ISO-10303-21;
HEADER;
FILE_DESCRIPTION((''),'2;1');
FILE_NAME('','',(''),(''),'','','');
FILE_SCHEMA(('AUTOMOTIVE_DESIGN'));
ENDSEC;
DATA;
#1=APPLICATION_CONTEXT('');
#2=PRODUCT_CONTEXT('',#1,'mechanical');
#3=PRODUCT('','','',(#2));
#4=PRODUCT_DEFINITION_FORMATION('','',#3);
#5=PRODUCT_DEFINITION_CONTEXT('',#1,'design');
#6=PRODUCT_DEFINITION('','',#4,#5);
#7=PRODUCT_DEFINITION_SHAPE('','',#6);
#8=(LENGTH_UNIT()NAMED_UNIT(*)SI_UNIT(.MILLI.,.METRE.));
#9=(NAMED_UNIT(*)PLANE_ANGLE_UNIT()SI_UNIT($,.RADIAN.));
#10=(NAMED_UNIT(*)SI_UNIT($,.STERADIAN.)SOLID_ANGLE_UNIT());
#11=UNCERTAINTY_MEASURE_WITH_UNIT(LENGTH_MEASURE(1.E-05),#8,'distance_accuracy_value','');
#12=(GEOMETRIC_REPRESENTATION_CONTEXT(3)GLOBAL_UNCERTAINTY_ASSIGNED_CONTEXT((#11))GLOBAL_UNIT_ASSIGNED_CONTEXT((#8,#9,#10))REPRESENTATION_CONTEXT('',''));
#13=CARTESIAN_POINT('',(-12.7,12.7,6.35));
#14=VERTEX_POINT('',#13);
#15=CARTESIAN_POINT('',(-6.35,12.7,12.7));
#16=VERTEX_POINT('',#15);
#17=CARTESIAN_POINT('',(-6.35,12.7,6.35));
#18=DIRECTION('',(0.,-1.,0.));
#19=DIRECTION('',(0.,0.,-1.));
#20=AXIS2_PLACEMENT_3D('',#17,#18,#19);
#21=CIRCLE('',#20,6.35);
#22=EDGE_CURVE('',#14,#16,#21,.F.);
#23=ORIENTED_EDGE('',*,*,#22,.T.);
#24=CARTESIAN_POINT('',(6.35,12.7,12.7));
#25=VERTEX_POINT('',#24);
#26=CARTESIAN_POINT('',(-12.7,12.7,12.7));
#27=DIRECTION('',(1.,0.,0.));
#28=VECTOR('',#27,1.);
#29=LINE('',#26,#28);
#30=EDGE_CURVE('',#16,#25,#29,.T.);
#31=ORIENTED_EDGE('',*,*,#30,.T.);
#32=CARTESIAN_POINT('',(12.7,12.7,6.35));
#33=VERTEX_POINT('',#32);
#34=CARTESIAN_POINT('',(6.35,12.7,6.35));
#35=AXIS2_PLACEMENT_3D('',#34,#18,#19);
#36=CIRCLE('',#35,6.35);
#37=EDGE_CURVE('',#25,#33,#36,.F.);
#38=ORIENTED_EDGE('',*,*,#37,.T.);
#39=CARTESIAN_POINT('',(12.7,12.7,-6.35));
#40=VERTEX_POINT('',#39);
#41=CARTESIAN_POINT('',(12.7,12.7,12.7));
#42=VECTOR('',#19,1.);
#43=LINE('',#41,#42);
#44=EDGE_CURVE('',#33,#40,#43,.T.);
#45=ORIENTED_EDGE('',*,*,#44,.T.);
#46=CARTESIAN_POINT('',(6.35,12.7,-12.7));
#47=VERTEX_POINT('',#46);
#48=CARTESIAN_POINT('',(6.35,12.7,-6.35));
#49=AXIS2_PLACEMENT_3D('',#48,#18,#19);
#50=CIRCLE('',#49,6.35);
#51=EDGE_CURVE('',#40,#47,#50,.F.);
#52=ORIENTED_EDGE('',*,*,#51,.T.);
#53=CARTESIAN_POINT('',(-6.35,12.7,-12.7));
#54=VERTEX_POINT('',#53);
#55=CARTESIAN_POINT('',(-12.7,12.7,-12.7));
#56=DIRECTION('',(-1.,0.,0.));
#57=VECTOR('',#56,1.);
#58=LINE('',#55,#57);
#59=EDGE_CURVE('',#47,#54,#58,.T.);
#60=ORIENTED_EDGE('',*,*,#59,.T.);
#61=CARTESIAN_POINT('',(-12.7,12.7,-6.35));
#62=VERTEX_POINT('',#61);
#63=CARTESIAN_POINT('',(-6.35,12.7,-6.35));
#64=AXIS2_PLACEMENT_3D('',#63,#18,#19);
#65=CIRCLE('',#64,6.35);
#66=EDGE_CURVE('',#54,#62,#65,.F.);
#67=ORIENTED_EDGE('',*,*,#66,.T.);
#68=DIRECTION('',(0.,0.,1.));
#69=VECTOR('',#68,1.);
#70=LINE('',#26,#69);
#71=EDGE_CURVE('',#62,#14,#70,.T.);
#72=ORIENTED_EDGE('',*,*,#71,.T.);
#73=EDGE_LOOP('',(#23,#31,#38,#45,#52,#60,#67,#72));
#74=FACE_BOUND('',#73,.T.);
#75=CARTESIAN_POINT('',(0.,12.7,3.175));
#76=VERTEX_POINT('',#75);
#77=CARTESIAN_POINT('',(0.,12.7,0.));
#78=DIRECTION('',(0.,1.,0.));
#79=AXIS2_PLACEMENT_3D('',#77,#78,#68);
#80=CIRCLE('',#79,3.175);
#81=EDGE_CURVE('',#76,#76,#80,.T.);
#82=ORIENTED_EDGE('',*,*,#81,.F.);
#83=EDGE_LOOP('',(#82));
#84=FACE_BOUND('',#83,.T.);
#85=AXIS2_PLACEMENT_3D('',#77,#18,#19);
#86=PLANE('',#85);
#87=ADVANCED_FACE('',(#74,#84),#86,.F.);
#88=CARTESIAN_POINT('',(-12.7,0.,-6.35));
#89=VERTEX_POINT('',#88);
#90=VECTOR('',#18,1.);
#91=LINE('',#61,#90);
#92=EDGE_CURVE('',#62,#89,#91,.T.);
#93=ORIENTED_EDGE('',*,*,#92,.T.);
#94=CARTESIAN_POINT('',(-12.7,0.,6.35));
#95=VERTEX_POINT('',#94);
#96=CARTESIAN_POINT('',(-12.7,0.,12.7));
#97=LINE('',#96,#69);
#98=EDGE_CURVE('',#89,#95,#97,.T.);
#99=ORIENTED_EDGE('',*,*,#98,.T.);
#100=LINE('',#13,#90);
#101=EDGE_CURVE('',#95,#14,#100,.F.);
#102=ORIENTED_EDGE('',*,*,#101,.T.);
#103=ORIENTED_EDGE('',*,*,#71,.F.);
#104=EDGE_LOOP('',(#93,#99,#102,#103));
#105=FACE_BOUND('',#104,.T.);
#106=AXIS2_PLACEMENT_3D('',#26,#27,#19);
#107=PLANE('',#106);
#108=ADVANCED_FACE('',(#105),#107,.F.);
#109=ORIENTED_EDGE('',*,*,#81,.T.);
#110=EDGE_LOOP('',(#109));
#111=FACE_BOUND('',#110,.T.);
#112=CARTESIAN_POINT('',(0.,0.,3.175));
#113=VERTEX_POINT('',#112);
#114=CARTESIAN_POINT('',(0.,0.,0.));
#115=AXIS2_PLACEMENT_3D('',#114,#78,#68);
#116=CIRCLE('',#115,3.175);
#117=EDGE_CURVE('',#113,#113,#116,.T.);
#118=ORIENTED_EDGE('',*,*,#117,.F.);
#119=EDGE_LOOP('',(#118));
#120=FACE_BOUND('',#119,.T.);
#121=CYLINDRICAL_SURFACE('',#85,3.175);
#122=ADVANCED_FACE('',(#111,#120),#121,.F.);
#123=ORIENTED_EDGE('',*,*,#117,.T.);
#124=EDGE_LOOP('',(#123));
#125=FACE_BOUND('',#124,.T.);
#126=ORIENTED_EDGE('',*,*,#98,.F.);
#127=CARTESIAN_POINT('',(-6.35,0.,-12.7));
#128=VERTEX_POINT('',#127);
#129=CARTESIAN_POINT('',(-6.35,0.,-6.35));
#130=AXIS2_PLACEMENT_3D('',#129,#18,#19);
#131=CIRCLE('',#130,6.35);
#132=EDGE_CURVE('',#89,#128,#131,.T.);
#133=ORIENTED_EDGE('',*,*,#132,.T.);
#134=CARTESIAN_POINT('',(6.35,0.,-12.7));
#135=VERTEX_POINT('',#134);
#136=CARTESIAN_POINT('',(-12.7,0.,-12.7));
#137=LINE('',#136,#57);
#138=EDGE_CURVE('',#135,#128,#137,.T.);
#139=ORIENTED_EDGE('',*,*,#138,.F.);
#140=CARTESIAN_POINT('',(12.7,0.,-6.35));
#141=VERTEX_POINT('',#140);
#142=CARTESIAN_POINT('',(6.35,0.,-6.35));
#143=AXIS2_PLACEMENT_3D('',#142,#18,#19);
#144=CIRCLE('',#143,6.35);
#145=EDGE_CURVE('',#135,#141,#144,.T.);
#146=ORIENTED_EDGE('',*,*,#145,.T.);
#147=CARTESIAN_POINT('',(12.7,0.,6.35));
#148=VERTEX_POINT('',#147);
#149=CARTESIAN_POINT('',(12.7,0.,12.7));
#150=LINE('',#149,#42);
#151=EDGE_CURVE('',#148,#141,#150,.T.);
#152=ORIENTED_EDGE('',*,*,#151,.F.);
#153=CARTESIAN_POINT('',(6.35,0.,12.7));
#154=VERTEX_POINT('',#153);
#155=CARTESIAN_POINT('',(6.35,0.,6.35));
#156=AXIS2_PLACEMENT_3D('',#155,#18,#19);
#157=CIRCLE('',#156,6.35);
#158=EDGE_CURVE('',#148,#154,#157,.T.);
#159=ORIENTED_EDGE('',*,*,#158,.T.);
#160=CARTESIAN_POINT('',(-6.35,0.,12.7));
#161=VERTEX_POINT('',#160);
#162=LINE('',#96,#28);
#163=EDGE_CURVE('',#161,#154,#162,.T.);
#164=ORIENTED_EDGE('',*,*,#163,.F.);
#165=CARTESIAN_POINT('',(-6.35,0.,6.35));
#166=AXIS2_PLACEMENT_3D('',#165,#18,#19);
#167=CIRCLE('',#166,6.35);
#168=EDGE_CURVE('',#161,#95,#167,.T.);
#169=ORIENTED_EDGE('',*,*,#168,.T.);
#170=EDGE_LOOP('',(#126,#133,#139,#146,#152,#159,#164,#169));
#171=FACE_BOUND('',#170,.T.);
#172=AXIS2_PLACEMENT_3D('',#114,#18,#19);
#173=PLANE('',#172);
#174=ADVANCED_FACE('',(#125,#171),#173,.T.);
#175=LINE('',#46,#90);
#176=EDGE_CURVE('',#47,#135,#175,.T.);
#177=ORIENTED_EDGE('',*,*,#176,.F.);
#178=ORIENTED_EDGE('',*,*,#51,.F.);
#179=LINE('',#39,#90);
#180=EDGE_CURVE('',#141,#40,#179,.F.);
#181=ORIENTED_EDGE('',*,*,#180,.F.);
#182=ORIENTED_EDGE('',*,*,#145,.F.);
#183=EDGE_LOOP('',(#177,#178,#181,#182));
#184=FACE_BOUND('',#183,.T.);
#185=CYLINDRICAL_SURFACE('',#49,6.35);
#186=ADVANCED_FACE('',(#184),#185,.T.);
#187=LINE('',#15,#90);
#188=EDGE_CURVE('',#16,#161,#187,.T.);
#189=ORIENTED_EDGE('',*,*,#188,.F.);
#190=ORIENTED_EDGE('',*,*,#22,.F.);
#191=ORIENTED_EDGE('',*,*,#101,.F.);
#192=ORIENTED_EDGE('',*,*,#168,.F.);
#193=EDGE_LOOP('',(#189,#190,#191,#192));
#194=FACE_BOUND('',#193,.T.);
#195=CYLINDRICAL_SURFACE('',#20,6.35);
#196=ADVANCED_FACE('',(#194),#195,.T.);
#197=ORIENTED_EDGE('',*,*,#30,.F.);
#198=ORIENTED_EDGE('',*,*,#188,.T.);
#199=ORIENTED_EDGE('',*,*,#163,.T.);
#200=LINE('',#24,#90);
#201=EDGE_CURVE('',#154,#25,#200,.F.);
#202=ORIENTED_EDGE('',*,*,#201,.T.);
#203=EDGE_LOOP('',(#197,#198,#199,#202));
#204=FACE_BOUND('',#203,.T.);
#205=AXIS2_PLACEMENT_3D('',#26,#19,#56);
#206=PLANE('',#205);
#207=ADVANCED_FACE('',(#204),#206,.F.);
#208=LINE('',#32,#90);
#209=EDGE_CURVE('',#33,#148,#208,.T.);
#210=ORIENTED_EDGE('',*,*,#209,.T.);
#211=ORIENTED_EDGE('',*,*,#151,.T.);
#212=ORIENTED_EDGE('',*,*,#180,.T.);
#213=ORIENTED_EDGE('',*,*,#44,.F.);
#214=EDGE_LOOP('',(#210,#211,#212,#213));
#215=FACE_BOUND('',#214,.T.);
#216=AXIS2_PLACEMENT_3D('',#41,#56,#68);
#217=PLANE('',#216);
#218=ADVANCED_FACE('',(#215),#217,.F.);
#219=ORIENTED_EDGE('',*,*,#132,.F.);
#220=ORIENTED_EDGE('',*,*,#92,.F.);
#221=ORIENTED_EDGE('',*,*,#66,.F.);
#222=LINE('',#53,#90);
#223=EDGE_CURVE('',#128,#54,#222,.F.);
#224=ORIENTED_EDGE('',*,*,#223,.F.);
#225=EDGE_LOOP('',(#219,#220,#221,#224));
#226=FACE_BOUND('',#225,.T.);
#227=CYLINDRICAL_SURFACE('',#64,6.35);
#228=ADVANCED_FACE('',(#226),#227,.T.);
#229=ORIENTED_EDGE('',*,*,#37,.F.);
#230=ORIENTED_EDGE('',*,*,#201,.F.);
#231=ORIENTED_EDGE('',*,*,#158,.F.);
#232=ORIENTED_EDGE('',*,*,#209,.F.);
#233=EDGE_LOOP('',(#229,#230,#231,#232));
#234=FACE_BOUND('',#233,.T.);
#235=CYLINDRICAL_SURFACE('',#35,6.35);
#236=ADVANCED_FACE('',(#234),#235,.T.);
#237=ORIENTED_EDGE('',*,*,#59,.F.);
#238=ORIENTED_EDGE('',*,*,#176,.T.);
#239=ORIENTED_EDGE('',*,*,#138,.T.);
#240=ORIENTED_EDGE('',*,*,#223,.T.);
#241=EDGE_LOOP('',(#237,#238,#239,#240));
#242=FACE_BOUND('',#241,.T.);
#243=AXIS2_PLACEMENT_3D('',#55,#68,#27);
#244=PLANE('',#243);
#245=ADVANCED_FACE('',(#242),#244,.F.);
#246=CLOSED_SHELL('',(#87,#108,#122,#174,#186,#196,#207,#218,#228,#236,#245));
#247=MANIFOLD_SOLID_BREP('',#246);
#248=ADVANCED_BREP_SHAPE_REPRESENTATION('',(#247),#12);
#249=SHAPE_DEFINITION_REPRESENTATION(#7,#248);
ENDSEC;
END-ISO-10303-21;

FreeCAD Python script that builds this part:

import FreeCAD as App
import Part
import Sketcher
from FreeCAD import Vector
Q = App.Units.Quantity


def edges_at(feature, points):
    """Names of the edges that pass closest to the given points."""
    edges = feature.Shape.Edges
    near = lambda p: min(range(len(edges)), key=lambda i: edges[i].distToShape(Part.Vertex(*p))[0])
    return sorted({f"Edge{near(p) + 1}" for p in points})


def add_polygon(sketch, points):
    """Adds a closed chain of lines whose ends are joined by coincident constraints."""
    first, n = sketch.GeometryCount, len(points)
    for a, b in zip(points, points[1:] + points[:1]):
        sketch.addGeometry(Part.LineSegment(App.Vector(*a, 0), App.Vector(*b, 0)), False)
    for i in range(n):
        sketch.addConstraint(Sketcher.Constraint("Coincident", first + i, 2, first + (i + 1) % n, 1))

doc = App.newDocument("Part")
body = doc.addObject("PartDesign::Body", "Body")

sketch1 = body.newObject("Sketcher::SketchObject", "Sketch")
sketch1.AttachmentSupport = (doc.getObject("XZ_Plane"), [""])
sketch1.MapMode = "FlatFace"
add_polygon(sketch1, [(-12.7, -12.7), (-12.7, 12.7), (12.7, 12.7), (12.7, -12.7)])
sketch1.addGeometry(Part.Circle(Vector(0, 0, 0), Vector(0, 0, 1), 3.175), False)
sketch1.addConstraint([
    Sketcher.Constraint("Vertical", 0),
    Sketcher.Constraint("Horizontal", 1),
    Sketcher.Constraint("Vertical", 2),
    Sketcher.Constraint("Horizontal", 3),
    Sketcher.Constraint("Coincident", 4, 3, -1, 1),
    Sketcher.Constraint("Symmetric", 0, 2, 2, 2, -1, 1),
    Sketcher.Constraint("Equal", 3, 0),
    Sketcher.Constraint("Diameter", 4, Q("0.25 in")),
    Sketcher.Constraint("DistanceX", 1, 1, 1, 2, Q("1 in")),
])
pad1 = body.newObject("PartDesign::Pad", "Pad")
pad1.Profile = sketch1
pad1.Length = Q("0.5 in")
pad1.Reversed = True
doc.recompute()

fillet = body.newObject("PartDesign::Fillet", "Fillet")
fillet.Base = (pad1, edges_at(pad1, [
    (12.7, 6.35, 12.7),
    (-12.7, 6.35, 12.7),
    (-12.7, 6.35, -12.7),
    (12.7, 6.35, -12.7),
]))
fillet.Radius = Q("0.25 in")

doc.recompute()
